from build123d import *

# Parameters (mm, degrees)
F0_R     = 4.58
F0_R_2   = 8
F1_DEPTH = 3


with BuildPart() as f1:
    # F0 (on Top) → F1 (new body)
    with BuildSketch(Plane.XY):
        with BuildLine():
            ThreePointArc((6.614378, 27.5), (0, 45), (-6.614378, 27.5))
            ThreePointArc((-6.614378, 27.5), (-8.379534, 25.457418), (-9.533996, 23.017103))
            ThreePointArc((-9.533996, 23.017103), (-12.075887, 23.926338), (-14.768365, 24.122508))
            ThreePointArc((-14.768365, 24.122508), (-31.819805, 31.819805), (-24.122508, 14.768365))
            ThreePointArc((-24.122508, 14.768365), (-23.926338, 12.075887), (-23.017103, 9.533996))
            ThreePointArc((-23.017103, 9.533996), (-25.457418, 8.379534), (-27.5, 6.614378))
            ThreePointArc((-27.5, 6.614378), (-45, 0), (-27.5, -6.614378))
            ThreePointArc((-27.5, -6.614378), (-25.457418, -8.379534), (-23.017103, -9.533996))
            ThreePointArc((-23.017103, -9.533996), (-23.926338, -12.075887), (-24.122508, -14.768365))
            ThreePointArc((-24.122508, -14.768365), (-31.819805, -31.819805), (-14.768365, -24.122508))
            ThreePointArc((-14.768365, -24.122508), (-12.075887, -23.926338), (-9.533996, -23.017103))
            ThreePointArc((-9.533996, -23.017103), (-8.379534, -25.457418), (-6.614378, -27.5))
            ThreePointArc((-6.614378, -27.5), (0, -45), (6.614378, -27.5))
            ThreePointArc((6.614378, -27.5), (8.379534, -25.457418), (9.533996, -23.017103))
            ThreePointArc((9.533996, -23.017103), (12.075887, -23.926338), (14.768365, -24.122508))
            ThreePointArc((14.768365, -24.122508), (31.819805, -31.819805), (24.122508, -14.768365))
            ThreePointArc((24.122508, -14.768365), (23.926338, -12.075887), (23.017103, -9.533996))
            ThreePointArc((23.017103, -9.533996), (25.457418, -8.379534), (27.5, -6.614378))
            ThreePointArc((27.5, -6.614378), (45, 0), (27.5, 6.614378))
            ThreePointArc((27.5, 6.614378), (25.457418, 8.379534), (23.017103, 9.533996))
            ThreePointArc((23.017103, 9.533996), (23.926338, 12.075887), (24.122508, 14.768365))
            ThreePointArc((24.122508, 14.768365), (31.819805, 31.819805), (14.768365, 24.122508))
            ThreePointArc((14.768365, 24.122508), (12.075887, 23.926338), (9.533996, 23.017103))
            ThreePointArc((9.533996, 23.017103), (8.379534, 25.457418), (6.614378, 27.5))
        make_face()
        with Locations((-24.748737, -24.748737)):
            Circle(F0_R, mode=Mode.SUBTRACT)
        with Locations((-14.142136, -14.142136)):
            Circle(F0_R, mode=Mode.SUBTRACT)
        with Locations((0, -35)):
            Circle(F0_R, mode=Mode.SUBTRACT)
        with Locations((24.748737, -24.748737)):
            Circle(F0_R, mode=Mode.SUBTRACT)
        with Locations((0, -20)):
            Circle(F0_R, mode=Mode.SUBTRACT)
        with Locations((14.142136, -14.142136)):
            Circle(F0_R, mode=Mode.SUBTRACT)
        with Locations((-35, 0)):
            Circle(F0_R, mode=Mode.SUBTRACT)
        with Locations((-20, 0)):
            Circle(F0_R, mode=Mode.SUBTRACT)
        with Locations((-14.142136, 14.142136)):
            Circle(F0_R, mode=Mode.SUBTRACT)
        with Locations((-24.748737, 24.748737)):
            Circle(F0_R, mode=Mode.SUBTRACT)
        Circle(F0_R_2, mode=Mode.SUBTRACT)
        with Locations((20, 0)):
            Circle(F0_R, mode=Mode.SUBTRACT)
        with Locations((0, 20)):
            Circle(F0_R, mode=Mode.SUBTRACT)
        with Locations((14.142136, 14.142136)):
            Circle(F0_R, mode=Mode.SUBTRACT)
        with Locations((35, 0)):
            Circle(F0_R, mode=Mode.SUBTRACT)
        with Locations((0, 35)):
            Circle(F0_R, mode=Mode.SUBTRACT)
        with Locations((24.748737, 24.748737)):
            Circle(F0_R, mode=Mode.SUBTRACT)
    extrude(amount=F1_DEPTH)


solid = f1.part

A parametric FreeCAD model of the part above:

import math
import FreeCAD as App
import Part
import Sketcher
from FreeCAD import Vector

doc = App.newDocument("Part")
body = doc.addObject("PartDesign::Body", "Body")

# Sketch on XY plane
sketch1 = doc.addObject("Sketcher::SketchObject", "Sketch")
body.addObject(sketch1)
sketch1.AttachmentSupport = (doc.XY_Plane, [""])
sketch1.MapMode = "FlatFace"
sketch1.addGeometry([
    Part.ArcOfCircle(Part.Circle(Vector(0, 35, 0), Vector(0, 0, 1), 10), math.radians(-48.590379), math.radians(228.590379)),  # 0
    Part.ArcOfCircle(Part.Circle(Vector(-0.000009, 20.000006, 0), Vector(0, 0, 1), 9.999989), math.radians(131.409607), math.radians(162.439662)),  # 1
    Part.ArcOfCircle(Part.Circle(Vector(-14.142135, 14.14214, 0), Vector(0, 0, 1), 9.999996), math.radians(62.56035), math.radians(93.590386)),  # 2
    Part.ArcOfCircle(Part.Circle(Vector(-24.748737, 24.748737, 0), Vector(0, 0, 1), 10), math.radians(-3.590379), math.radians(273.590379)),  # 3
    Part.ArcOfCircle(Part.Circle(Vector(-14.14214, 14.142135, 0), Vector(0, 0, 1), 9.999996), math.radians(176.409614), math.radians(207.43965)),  # 4
    Part.ArcOfCircle(Part.Circle(Vector(-20.000006, 0.000009, 0), Vector(0, 0, 1), 9.999989), math.radians(107.560338), math.radians(138.590393)),  # 5
    Part.ArcOfCircle(Part.Circle(Vector(-35, 0, 0), Vector(0, 0, 1), 10), math.radians(41.409621), math.radians(318.590379)),  # 6
    Part.ArcOfCircle(Part.Circle(Vector(-20.000006, -0.000009, 0), Vector(0, 0, 1), 9.999989), math.radians(-138.590393), math.radians(-107.560338)),  # 7
    Part.ArcOfCircle(Part.Circle(Vector(-14.14214, -14.142135, 0), Vector(0, 0, 1), 9.999996), math.radians(152.56035), math.radians(183.590386)),  # 8
    Part.ArcOfCircle(Part.Circle(Vector(-24.748737, -24.748737, 0), Vector(0, 0, 1), 10), math.radians(86.409621), math.radians(363.590379)),  # 9
    Part.ArcOfCircle(Part.Circle(Vector(-14.142135, -14.14214, 0), Vector(0, 0, 1), 9.999996), math.radians(-93.590386), math.radians(-62.56035)),  # 10
    Part.ArcOfCircle(Part.Circle(Vector(-0.000009, -20.000006, 0), Vector(0, 0, 1), 9.999989), math.radians(-162.439662), math.radians(-131.409607)),  # 11
    Part.ArcOfCircle(Part.Circle(Vector(0, -35, 0), Vector(0, 0, 1), 10), math.radians(131.409621), math.radians(408.590379)),  # 12
    Part.ArcOfCircle(Part.Circle(Vector(0.000009, -20.000006, 0), Vector(0, 0, 1), 9.999989), math.radians(-48.590393), math.radians(-17.560338)),  # 13
    Part.ArcOfCircle(Part.Circle(Vector(14.142135, -14.14214, 0), Vector(0, 0, 1), 9.999996), math.radians(-117.43965), math.radians(-86.409614)),  # 14
    Part.ArcOfCircle(Part.Circle(Vector(24.748737, -24.748737, 0), Vector(0, 0, 1), 10), math.radians(176.409621), math.radians(453.590379)),  # 15
    Part.ArcOfCircle(Part.Circle(Vector(14.14214, -14.142135, 0), Vector(0, 0, 1), 9.999996), math.radians(-3.590386), math.radians(27.43965)),  # 16
    Part.ArcOfCircle(Part.Circle(Vector(20.000006, -0.000009, 0), Vector(0, 0, 1), 9.999989), math.radians(-72.439662), math.radians(-41.409607)),  # 17
    Part.ArcOfCircle(Part.Circle(Vector(35, 0, 0), Vector(0, 0, 1), 10), math.radians(-138.590379), math.radians(138.590379)),  # 18
    Part.ArcOfCircle(Part.Circle(Vector(20.000006, 0.000009, 0), Vector(0, 0, 1), 9.999989), math.radians(41.409607), math.radians(72.439662)),  # 19
    Part.ArcOfCircle(Part.Circle(Vector(14.14214, 14.142135, 0), Vector(0, 0, 1), 9.999996), math.radians(-27.43965), math.radians(3.590386)),  # 20
    Part.ArcOfCircle(Part.Circle(Vector(24.748737, 24.748737, 0), Vector(0, 0, 1), 10), math.radians(-93.590379), math.radians(183.590379)),  # 21
    Part.ArcOfCircle(Part.Circle(Vector(14.142135, 14.14214, 0), Vector(0, 0, 1), 9.999996), math.radians(86.409614), math.radians(117.43965)),  # 22
    Part.ArcOfCircle(Part.Circle(Vector(0.000009, 20.000006, 0), Vector(0, 0, 1), 9.999989), math.radians(17.560338), math.radians(48.590393)),  # 23
    Part.Circle(Vector(-24.748737, -24.748737, 0), Vector(0, 0, 1), 4.58),  # 24
    Part.Circle(Vector(-14.142136, -14.142136, 0), Vector(0, 0, 1), 4.58),  # 25
    Part.Circle(Vector(0, -35, 0), Vector(0, 0, 1), 4.58),  # 26
    Part.Circle(Vector(0, -20, 0), Vector(0, 0, 1), 4.58),  # 27
    Part.Circle(Vector(24.748737, -24.748737, 0), Vector(0, 0, 1), 4.58),  # 28
    Part.Circle(Vector(14.142136, -14.142136, 0), Vector(0, 0, 1), 4.58),  # 29
    Part.Circle(Vector(-35, 0, 0), Vector(0, 0, 1), 4.58),  # 30
    Part.Circle(Vector(-20, 0, 0), Vector(0, 0, 1), 4.58),  # 31
    Part.Circle(Vector(-14.142136, 14.142136, 0), Vector(0, 0, 1), 4.58),  # 32
    Part.Circle(Vector(-24.748737, 24.748737, 0), Vector(0, 0, 1), 4.58),  # 33
    Part.Circle(Vector(0, 0, 0), Vector(0, 0, 1), 8),  # 34
    Part.Circle(Vector(14.142136, 14.142136, 0), Vector(0, 0, 1), 4.58),  # 35
    Part.Circle(Vector(20, 0, 0), Vector(0, 0, 1), 4.58),  # 36
    Part.Circle(Vector(35, 0, 0), Vector(0, 0, 1), 4.58),  # 37
    Part.Circle(Vector(0, 20, 0), Vector(0, 0, 1), 4.58),  # 38
    Part.Circle(Vector(0, 35, 0), Vector(0, 0, 1), 4.58),  # 39
    Part.Circle(Vector(24.748737, 24.748737, 0), Vector(0, 0, 1), 4.58),  # 40
], False)
sketch1.addConstraint([
    Sketcher.Constraint("Coincident", 0, 2, 1, 1),
    Sketcher.Constraint("Coincident", 1, 2, 2, 1),
    Sketcher.Constraint("Coincident", 2, 2, 3, 1),
    Sketcher.Constraint("Coincident", 3, 2, 4, 1),
    Sketcher.Constraint("Coincident", 4, 2, 5, 1),
    Sketcher.Constraint("Coincident", 5, 2, 6, 1),
    Sketcher.Constraint("Coincident", 6, 2, 7, 1),
    Sketcher.Constraint("Coincident", 7, 2, 8, 1),
    Sketcher.Constraint("Coincident", 8, 2, 9, 1),
    Sketcher.Constraint("Coincident", 9, 2, 10, 1),
    Sketcher.Constraint("Coincident", 10, 2, 11, 1),
    Sketcher.Constraint("Coincident", 11, 2, 12, 1),
    Sketcher.Constraint("Coincident", 12, 2, 13, 1),
    Sketcher.Constraint("Coincident", 13, 2, 14, 1),
    Sketcher.Constraint("Coincident", 14, 2, 15, 1),
    Sketcher.Constraint("Coincident", 15, 2, 16, 1),
    Sketcher.Constraint("Coincident", 16, 2, 17, 1),
    Sketcher.Constraint("Coincident", 17, 2, 18, 1),
    Sketcher.Constraint("Coincident", 18, 2, 19, 1),
    Sketcher.Constraint("Coincident", 19, 2, 20, 1),
    Sketcher.Constraint("Coincident", 20, 2, 21, 1),
    Sketcher.Constraint("Coincident", 21, 2, 22, 1),
    Sketcher.Constraint("Coincident", 22, 2, 23, 1),
    Sketcher.Constraint("Coincident", 23, 2, 0, 1),
    Sketcher.Constraint("Coincident", 34, 3, -1, 1),
    Sketcher.Constraint("Coincident", 4, 3, 2, 3),
    Sketcher.Constraint("Coincident", 10, 3, 8, 3),
    Sketcher.Constraint("Coincident", 16, 3, 14, 3),
    Sketcher.Constraint("Coincident", 22, 3, 20, 3),
    Sketcher.Constraint("Coincident", 24, 3, 9, 3),
    Sketcher.Constraint("Coincident", 25, 3, 8, 3),
    Sketcher.Constraint("Coincident", 26, 3, 12, 3),
    Sketcher.Constraint("Coincident", 28, 3, 15, 3),
    Sketcher.Constraint("Coincident", 29, 3, 14, 3),
    Sketcher.Constraint("Coincident", 30, 3, 6, 3),
    Sketcher.Constraint("Coincident", 32, 3, 2, 3),
    Sketcher.Constraint("Coincident", 33, 3, 3, 3),
    Sketcher.Constraint("Coincident", 35, 3, 20, 3),
    Sketcher.Constraint("Coincident", 37, 3, 18, 3),
    Sketcher.Constraint("Coincident", 39, 3, 0, 3),
    Sketcher.Constraint("Coincident", 40, 3, 21, 3),
    Sketcher.Constraint("Equal", 0, 3),
    Sketcher.Constraint("Equal", 2, 4),
    Sketcher.Constraint("Equal", 1, 5),
    Sketcher.Constraint("Equal", 3, 6),
    Sketcher.Constraint("Equal", 5, 7),
    Sketcher.Constraint("Equal", 4, 8),
    Sketcher.Constraint("Equal", 6, 9),
    Sketcher.Constraint("Equal", 8, 10),
    Sketcher.Constraint("Equal", 7, 11),
    Sketcher.Constraint("Equal", 9, 12),
    Sketcher.Constraint("Equal", 11, 13),
    Sketcher.Constraint("Equal", 10, 14),
    Sketcher.Constraint("Equal", 12, 15),
    Sketcher.Constraint("Equal", 14, 16),
    Sketcher.Constraint("Equal", 13, 17),
    Sketcher.Constraint("Equal", 15, 18),
    Sketcher.Constraint("Equal", 17, 19),
    Sketcher.Constraint("Equal", 16, 20),
    Sketcher.Constraint("Equal", 18, 21),
    Sketcher.Constraint("Equal", 20, 22),
    Sketcher.Constraint("Equal", 19, 23),
    Sketcher.Constraint("Equal", 24, 25),
    Sketcher.Constraint("Equal", 25, 26),
    Sketcher.Constraint("Equal", 26, 27),
    Sketcher.Constraint("Equal", 27, 28),
    Sketcher.Constraint("Equal", 28, 29),
    Sketcher.Constraint("Equal", 29, 30),
    Sketcher.Constraint("Equal", 30, 31),
    Sketcher.Constraint("Equal", 31, 32),
    Sketcher.Constraint("Equal", 32, 33),
    Sketcher.Constraint("Equal", 33, 35),
    Sketcher.Constraint("Equal", 35, 36),
    Sketcher.Constraint("Equal", 36, 37),
    Sketcher.Constraint("Equal", 37, 38),
    Sketcher.Constraint("Equal", 38, 39),
    Sketcher.Constraint("Equal", 39, 40),
    Sketcher.Constraint("Symmetric", 0, 3, 12, 3, -1, 1),
    Sketcher.Constraint("Symmetric", 1, 3, 13, 3, -1, 1),
    Sketcher.Constraint("Symmetric", 2, 3, 14, 3, -1, 1),
    Sketcher.Constraint("Symmetric", 3, 3, 15, 3, -1, 1),
    Sketcher.Constraint("Symmetric", 5, 3, 17, 3, -1, 1),
    Sketcher.Constraint("Symmetric", 6, 3, 18, 3, -1, 1),
    Sketcher.Constraint("Symmetric", 7, 3, 19, 3, -1, 1),
    Sketcher.Constraint("Symmetric", 8, 3, 20, 3, -1, 1),
    Sketcher.Constraint("Symmetric", 9, 3, 21, 3, -1, 1),
    Sketcher.Constraint("Symmetric", 11, 3, 23, 3, -1, 1),
    Sketcher.Constraint("Symmetric", 31, 3, 36, 3, -1, 1),
    Sketcher.Constraint("Symmetric", 27, 3, 38, 3, -1, 1),
    Sketcher.Constraint("Symmetric", 11, 3, 13, 3, -2),
    Sketcher.Constraint("Symmetric", 8, 3, 14, 3, -2),
    Sketcher.Constraint("Symmetric", 9, 3, 15, 3, -2),
    Sketcher.Constraint("Symmetric", 7, 3, 17, 3, -2),
    Sketcher.Constraint("PointOnObject", 0, 3, -2),
    Sketcher.Constraint("PointOnObject", 6, 3, -1),
    Sketcher.Constraint("PointOnObject", 27, 3, -2),
    Sketcher.Constraint("PointOnObject", 31, 3, -1),
    Sketcher.Constraint("Diameter", 34, 16.0),
    Sketcher.Constraint("Radius", 0, 10.0),
    Sketcher.Constraint("Diameter", 24, 9.16),
    Sketcher.Constraint("DistanceY", -1, 1, 0, 3, 35.0),
    Sketcher.Constraint("DistanceX", 6, 3, -1, 1, 35.0),
    Sketcher.Constraint("DistanceY", 27, 3, -1, 1, 20.0),
    Sketcher.Constraint("DistanceX", 31, 3, -1, 1, 20.0),
    Sketcher.Constraint("DistanceY", -1, 1, 0, 2, 27.5),
    Sketcher.Constraint("DistanceX", 5, 2, -1, 1, 27.5),
    Sketcher.Constraint("Radius", 1, 9.999989),
    Sketcher.Constraint("Radius", 2, 9.999996),
    Sketcher.Constraint("DistanceY", -1, 1, 2, 3, 14.14214),
    Sketcher.Constraint("DistanceX", 4, 3, -1, 1, 14.14214),
    Sketcher.Constraint("DistanceX", 3, 2, -1, 1, 24.122508),
    Sketcher.Constraint("DistanceY", 9, 2, -1, 1, 24.122508),
    Sketcher.Constraint("DistanceY", -1, 1, 1, 3, 20.000006),
    Sketcher.Constraint("DistanceX", 5, 3, -1, 1, 20.000006),
])
pad1 = doc.addObject("PartDesign::Pad", "Pad")
body.addObject(pad1)
pad1.Profile = sketch1
pad1.Length = 3

doc.recompute()
